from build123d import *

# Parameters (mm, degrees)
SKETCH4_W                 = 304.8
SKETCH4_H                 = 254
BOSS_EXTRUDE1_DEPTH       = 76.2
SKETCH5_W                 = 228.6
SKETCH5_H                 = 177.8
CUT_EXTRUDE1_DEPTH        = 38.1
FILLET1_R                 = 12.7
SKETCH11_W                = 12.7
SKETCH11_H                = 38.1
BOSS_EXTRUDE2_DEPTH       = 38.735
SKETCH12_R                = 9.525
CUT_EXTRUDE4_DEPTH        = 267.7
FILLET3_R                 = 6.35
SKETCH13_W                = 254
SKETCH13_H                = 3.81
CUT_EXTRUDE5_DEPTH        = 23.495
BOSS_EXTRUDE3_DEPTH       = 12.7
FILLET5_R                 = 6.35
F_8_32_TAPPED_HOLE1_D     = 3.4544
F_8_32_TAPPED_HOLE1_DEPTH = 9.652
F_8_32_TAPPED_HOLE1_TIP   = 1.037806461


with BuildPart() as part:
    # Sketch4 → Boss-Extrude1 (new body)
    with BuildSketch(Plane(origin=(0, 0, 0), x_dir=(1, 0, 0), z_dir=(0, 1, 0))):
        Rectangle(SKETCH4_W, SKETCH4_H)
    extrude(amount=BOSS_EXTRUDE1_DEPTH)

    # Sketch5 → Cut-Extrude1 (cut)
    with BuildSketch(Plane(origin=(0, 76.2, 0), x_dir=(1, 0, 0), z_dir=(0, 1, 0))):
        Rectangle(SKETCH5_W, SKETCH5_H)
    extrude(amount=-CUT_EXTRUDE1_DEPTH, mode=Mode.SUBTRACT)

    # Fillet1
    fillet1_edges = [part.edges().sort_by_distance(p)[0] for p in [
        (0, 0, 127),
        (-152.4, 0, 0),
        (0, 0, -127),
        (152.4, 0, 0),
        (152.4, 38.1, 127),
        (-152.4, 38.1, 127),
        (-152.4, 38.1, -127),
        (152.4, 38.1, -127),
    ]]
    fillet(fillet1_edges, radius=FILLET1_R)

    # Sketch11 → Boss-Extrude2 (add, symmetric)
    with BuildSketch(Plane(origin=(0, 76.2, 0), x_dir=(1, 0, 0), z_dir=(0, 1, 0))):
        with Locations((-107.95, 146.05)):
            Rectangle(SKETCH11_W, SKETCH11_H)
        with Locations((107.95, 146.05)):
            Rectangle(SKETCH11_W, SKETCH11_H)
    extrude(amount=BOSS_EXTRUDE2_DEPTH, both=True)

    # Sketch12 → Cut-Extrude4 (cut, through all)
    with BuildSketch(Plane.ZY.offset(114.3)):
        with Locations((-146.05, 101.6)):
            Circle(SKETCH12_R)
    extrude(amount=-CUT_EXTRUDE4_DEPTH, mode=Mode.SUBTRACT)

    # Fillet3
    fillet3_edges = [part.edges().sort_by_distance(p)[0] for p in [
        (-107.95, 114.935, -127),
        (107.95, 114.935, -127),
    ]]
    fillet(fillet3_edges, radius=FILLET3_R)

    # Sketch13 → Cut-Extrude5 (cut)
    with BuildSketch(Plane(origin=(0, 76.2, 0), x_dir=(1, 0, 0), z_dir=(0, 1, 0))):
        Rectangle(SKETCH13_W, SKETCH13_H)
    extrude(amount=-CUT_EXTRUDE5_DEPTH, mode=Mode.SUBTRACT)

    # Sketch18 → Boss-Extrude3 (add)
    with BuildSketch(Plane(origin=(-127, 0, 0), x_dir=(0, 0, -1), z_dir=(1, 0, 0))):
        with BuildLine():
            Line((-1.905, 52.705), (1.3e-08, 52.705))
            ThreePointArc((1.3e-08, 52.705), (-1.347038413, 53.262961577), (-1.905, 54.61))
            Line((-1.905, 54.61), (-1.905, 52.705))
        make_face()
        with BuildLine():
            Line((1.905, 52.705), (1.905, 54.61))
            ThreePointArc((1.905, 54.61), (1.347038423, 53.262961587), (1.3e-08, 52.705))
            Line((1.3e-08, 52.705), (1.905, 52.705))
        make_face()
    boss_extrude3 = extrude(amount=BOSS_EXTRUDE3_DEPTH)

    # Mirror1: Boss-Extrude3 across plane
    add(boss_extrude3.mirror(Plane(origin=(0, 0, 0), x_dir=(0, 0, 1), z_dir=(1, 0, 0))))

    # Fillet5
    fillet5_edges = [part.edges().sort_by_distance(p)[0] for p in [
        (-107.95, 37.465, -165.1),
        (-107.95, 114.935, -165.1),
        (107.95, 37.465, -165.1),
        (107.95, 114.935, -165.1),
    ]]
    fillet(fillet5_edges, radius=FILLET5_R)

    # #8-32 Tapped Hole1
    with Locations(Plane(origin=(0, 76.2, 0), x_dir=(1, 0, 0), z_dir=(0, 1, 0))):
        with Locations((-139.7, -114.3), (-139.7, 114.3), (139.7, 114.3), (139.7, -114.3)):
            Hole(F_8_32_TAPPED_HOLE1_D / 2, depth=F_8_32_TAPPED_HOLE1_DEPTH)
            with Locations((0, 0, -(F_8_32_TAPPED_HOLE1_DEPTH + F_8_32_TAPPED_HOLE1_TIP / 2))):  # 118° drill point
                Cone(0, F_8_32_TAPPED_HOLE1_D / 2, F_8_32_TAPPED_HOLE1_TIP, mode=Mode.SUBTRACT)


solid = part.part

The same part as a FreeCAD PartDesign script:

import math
import FreeCAD as App
import Part
import Sketcher
Q = App.Units.Quantity


def edges_at(feature, points):
    """Names of the edges that pass closest to the given points."""
    edges = feature.Shape.Edges
    near = lambda p: min(range(len(edges)), key=lambda i: edges[i].distToShape(Part.Vertex(*p))[0])
    return sorted({f"Edge{near(p) + 1}" for p in points})


def add_polygon(sketch, points):
    """Adds a closed chain of lines whose ends are joined by coincident constraints."""
    first, n = sketch.GeometryCount, len(points)
    for a, b in zip(points, points[1:] + points[:1]):
        sketch.addGeometry(Part.LineSegment(App.Vector(*a, 0), App.Vector(*b, 0)), False)
    for i in range(n):
        sketch.addConstraint(Sketcher.Constraint("Coincident", first + i, 2, first + (i + 1) % n, 1))

doc = App.newDocument("Part")
body = doc.addObject("PartDesign::Body", "Body")

# Sketch on XZ plane
sketch1 = doc.addObject("Sketcher::SketchObject", "Sketch")
body.addObject(sketch1)
sketch1.AttachmentSupport = (doc.XZ_Plane, [""])
sketch1.MapMode = "FlatFace"
add_polygon(sketch1, [(-152, -127), (-152, 127), (152, 127), (152, -127)])  # lines 0-3
sketch1.addConstraint([
    Sketcher.Constraint("Vertical", 0),
    Sketcher.Constraint("Horizontal", 1),
    Sketcher.Constraint("Vertical", 2),
    Sketcher.Constraint("Horizontal", 3),
    Sketcher.Constraint("Symmetric", 0, 2, 2, 2, -1, 1),
    Sketcher.Constraint("DistanceX", 1, 1, 1, 2, Q("12 in")),
    Sketcher.Constraint("DistanceY", 0, 1, 0, 2, Q("10 in")),
])
pad1 = doc.addObject("PartDesign::Pad", "Pad")
body.addObject(pad1)
pad1.Profile = sketch1
pad1.Length = Q("3 in")
pad1.Reversed = True

# Sketch on XZ plane
sketch2 = doc.addObject("Sketcher::SketchObject", "Sketch001")
body.addObject(sketch2)
sketch2.AttachmentSupport = (doc.XZ_Plane, [""])
sketch2.MapMode = "FlatFace"
sketch2.AttachmentOffset = App.Placement(App.Vector(0, 0, -3 * 25.4), App.Rotation())
add_polygon(sketch2, [(-114, -89), (-114, 89), (114, 89), (114, -89)])  # lines 0-3
sketch2.addConstraint([
    Sketcher.Constraint("Vertical", 0),
    Sketcher.Constraint("Horizontal", 1),
    Sketcher.Constraint("Vertical", 2),
    Sketcher.Constraint("Horizontal", 3),
    Sketcher.Constraint("Symmetric", 0, 2, 2, 2, -1, 1),
    Sketcher.Constraint("DistanceX", 1, 1, 1, 2, Q("9 in")),
    Sketcher.Constraint("DistanceY", 0, 1, 0, 2, Q("7 in")),
])
pocket1 = doc.addObject("PartDesign::Pocket", "Pocket")
body.addObject(pocket1)
pocket1.Profile = sketch2
pocket1.Length = Q("1.5 in")
pocket1.Reversed = True
doc.recompute()

fillet = doc.addObject("PartDesign::Fillet", "Fillet")
body.addObject(fillet)
fillet.Base = (pocket1, edges_at(pocket1, [
    (0, 0, 127),
    (-152.4, 0, 0),
    (0, 0, -127),
    (152.4, 0, 0),
    (152.4, 38.1, 127),
    (-152.4, 38.1, 127),
    (-152.4, 38.1, -127),
    (152.4, 38.1, -127),
]))
fillet.Radius = Q("0.5 in")

# Sketch on XZ plane
sketch3 = doc.addObject("Sketcher::SketchObject", "Sketch002")
body.addObject(sketch3)
sketch3.AttachmentSupport = (doc.XZ_Plane, [""])
sketch3.MapMode = "FlatFace"
sketch3.AttachmentOffset = App.Placement(App.Vector(0, 0, -3 * 25.4), App.Rotation())
add_polygon(sketch3, [(-114, -165), (-114, -127), (-102, -127), (-102, -165)])  # lines 0-3
add_polygon(sketch3, [(102, -165), (102, -127), (114, -127), (114, -165)])  # lines 4-7
sketch3.addConstraint([
    Sketcher.Constraint("Vertical", 0),
    Sketcher.Constraint("Horizontal", 1),
    Sketcher.Constraint("Vertical", 2),
    Sketcher.Constraint("Horizontal", 3),
    Sketcher.Constraint("Vertical", 4),
    Sketcher.Constraint("Horizontal", 5),
    Sketcher.Constraint("Vertical", 6),
    Sketcher.Constraint("Horizontal", 7),
    Sketcher.Constraint("Symmetric", 1, 2, 4, 2, -2),
    Sketcher.Constraint("Symmetric", 3, 2, 6, 2, -2),
    Sketcher.Constraint("DistanceX", 1, 1, 1, 2, Q("0.5 in")),
    Sketcher.Constraint("DistanceY", 0, 1, 0, 2, Q("1.5 in")),
    Sketcher.Constraint("DistanceY", 0, 2, -1, 1, Q("5 in")),
    Sketcher.Constraint("DistanceX", 1, 2, -1, 1, Q("4 in")),
])
pad2 = doc.addObject("PartDesign::Pad", "Pad001")
body.addObject(pad2)
pad2.Profile = sketch3
pad2.Length = Q("3.05 in")
pad2.Midplane = True

# Sketch on YZ plane
sketch4 = doc.addObject("Sketcher::SketchObject", "Sketch003")
body.addObject(sketch4)
sketch4.AttachmentSupport = (doc.YZ_Plane, [""])
sketch4.MapMode = "FlatFace"
sketch4.AttachmentOffset = App.Placement(App.Vector(0, 0, -4.5 * 25.4), App.Rotation())
sketch4.addGeometry(Part.Circle(App.Vector(102, -146, 0), App.Vector(0, 0, 1), 10), False)
sketch4.addConstraint([
    Sketcher.Constraint("Diameter", 0, Q("0.75 in")),
    Sketcher.Constraint("DistanceX", -1, 1, 0, 3, Q("4 in")),
    Sketcher.Constraint("DistanceY", 0, 3, -1, 1, Q("5.75 in")),
])
pocket2 = doc.addObject("PartDesign::Pocket", "Pocket001")
body.addObject(pocket2)
pocket2.Profile = sketch4
pocket2.Type = "ThroughAll"
pocket2.Reversed = True
doc.recompute()

fillet2 = doc.addObject("PartDesign::Fillet", "Fillet001")
body.addObject(fillet2)
fillet2.Base = (pocket2, edges_at(pocket2, [(-107.95, 114.935, -127), (107.95, 114.935, -127)]))
fillet2.Radius = Q("0.25 in")

# Sketch on XZ plane
sketch5 = doc.addObject("Sketcher::SketchObject", "Sketch004")
body.addObject(sketch5)
sketch5.AttachmentSupport = (doc.XZ_Plane, [""])
sketch5.MapMode = "FlatFace"
sketch5.AttachmentOffset = App.Placement(App.Vector(0, 0, -3 * 25.4), App.Rotation())
add_polygon(sketch5, [(-127, -1.9), (-127, 1.9), (127, 1.9), (127, -1.9)])  # lines 0-3
sketch5.addConstraint([
    Sketcher.Constraint("Vertical", 0),
    Sketcher.Constraint("Horizontal", 1),
    Sketcher.Constraint("Vertical", 2),
    Sketcher.Constraint("Horizontal", 3),
    Sketcher.Constraint("Symmetric", 0, 2, 2, 2, -1, 1),
    Sketcher.Constraint("DistanceX", 1, 1, 1, 2, Q("10 in")),
    Sketcher.Constraint("DistanceY", 0, 1, 0, 2, Q("0.15 in")),
])
pocket3 = doc.addObject("PartDesign::Pocket", "Pocket002")
body.addObject(pocket3)
pocket3.Profile = sketch5
pocket3.Length = Q("0.925 in")
pocket3.Reversed = True

# Sketch on YZ plane
sketch6 = doc.addObject("Sketcher::SketchObject", "Sketch005")
body.addObject(sketch6)
sketch6.AttachmentSupport = (doc.YZ_Plane, [""])
sketch6.MapMode = "FlatFace"
sketch6.AttachmentOffset = App.Placement(App.Vector(0, 0, -5 * 25.4), App.Rotation())
sketch6.addGeometry([
    Part.LineSegment(App.Vector(52.7, 1.9, 0), App.Vector(52.7, 0, 0)),  # 0
    Part.ArcOfCircle(Part.Circle(App.Vector(54.6, 0, 0), App.Vector(0, 0, 1), 1.9), math.radians(90), math.radians(180)),  # 1
    Part.LineSegment(App.Vector(54.6, 1.9, 0), App.Vector(52.7, 1.9, 0)),  # 2
    Part.LineSegment(App.Vector(52.7, -1.9, 0), App.Vector(54.6, -1.9, 0)),  # 3
    Part.ArcOfCircle(Part.Circle(App.Vector(54.6, 0, 0), App.Vector(0, 0, 1), 1.9), math.radians(-180), math.radians(-90)),  # 4
    Part.LineSegment(App.Vector(52.7, 0, 0), App.Vector(52.7, -1.9, 0)),  # 5
], False)
sketch6.addConstraint([
    Sketcher.Constraint("Tangent", 0, 2, 1, 2),
    Sketcher.Constraint("Tangent", 1, 1, 2, 1),
    Sketcher.Constraint("Coincident", 2, 2, 0, 1),
    Sketcher.Constraint("Tangent", 3, 2, 4, 2),
    Sketcher.Constraint("Tangent", 4, 1, 5, 1),
    Sketcher.Constraint("Coincident", 5, 2, 3, 1),
    Sketcher.Constraint("Vertical", 0),
    Sketcher.Constraint("Horizontal", 2),
    Sketcher.Constraint("Horizontal", 3),
    Sketcher.Constraint("Vertical", 5),
    Sketcher.Constraint("Coincident", 4, 3, 1, 3),
    Sketcher.Constraint("Equal", 1, 4),
    Sketcher.Constraint("PointOnObject", 1, 3, -1),
    Sketcher.Constraint("Radius", 1, Q("0.075 in")),
    Sketcher.Constraint("DistanceX", -1, 1, 1, 3, Q("2.15 in")),
])
pad3 = doc.addObject("PartDesign::Pad", "Pad002")
body.addObject(pad3)
pad3.Profile = sketch6
pad3.Length = Q("0.5 in")
doc.recompute()

mirrored = doc.addObject("PartDesign::Mirrored", "Mirrored")
body.addObject(mirrored)
mirrored.Originals = [pad3]
mirrored.MirrorPlane = (doc.YZ_Plane, [""])
body.Tip = mirrored
doc.recompute()

fillet3 = doc.addObject("PartDesign::Fillet", "Fillet002")
body.addObject(fillet3)
fillet3.Base = (mirrored, edges_at(mirrored, [
    (-107.95, 37.465, -165.1),
    (-107.95, 114.935, -165.1),
    (107.95, 37.465, -165.1),
    (107.95, 114.935, -165.1),
]))
fillet3.Radius = Q("0.25 in")

# Sketch on XZ plane
sketch7 = doc.addObject("Sketcher::SketchObject", "Sketch006")
body.addObject(sketch7)
sketch7.AttachmentSupport = (doc.XZ_Plane, [""])
sketch7.MapMode = "FlatFace"
sketch7.AttachmentOffset = App.Placement(App.Vector(0, 0, -3 * 25.4), App.Rotation())
sketch7.addGeometry([
    Part.Circle(App.Vector(-139.7, 114.3, 0), App.Vector(0, 0, 1), 1.7),
    Part.Circle(App.Vector(-139.7, -114.3, 0), App.Vector(0, 0, 1), 1.7),
    Part.Circle(App.Vector(139.7, -114.3, 0), App.Vector(0, 0, 1), 1.7),
    Part.Circle(App.Vector(139.7, 114.3, 0), App.Vector(0, 0, 1), 1.7),
], False)
sketch7.addConstraint([
    Sketcher.Constraint("Equal", 0, 1),
    Sketcher.Constraint("Equal", 1, 2),
    Sketcher.Constraint("Equal", 2, 3),
    Sketcher.Constraint("Symmetric", 0, 3, 2, 3, -1, 1),
    Sketcher.Constraint("Symmetric", 1, 3, 3, 3, -1, 1),
    Sketcher.Constraint("Symmetric", 1, 3, 2, 3, -2),
    Sketcher.Constraint("Diameter", 0, Q("0.136 in")),
    Sketcher.Constraint("DistanceY", 1, 3, 0, 3, Q("9 in")),
    Sketcher.Constraint("DistanceX", 1, 3, 2, 3, Q("11 in")),
])
doc.recompute()
hole = doc.addObject("PartDesign::Hole", "Hole")
body.addObject(hole)
hole.Profile = sketch7
hole.ThreadType = "None"
hole.Diameter = Q("0.136 in")
hole.DepthType = "Dimension"
hole.Depth = Q("0.38 in")
hole.DrillPoint = "Angled"
hole.DrillPointAngle = 118
hole.Reversed = True

doc.recompute()
